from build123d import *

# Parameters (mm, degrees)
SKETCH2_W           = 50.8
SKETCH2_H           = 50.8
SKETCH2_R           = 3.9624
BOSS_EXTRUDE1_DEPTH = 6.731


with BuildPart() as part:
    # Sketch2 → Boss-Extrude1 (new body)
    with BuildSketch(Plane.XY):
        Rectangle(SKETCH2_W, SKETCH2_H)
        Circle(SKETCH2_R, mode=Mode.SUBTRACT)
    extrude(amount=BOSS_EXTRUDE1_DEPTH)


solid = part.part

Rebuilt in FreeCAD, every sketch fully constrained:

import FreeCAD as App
import Part
import Sketcher

V = App.Vector
Q = App.Units.Quantity


def add_polygon(sketch, points):
    """Adds a closed chain of lines whose ends are joined by coincident constraints."""
    first, n = sketch.GeometryCount, len(points)
    for a, b in zip(points, points[1:] + points[:1]):
        sketch.addGeometry(Part.LineSegment(App.Vector(*a, 0), App.Vector(*b, 0)), False)
    for i in range(n):
        sketch.addConstraint(Sketcher.Constraint("Coincident", first + i, 2, first + (i + 1) % n, 1))

doc = App.newDocument("Part")
body = doc.addObject("PartDesign::Body", "Body")

sketch1 = body.newObject("Sketcher::SketchObject", "Sketch")
sketch1.AttachmentSupport = (doc.getObject("XY_Plane"), [""])
sketch1.MapMode = "FlatFace"
add_polygon(sketch1, [(-25.4, 25.4), (-25.4, -25.4), (25.4, -25.4), (25.4, 25.4)])
sketch1.addGeometry(Part.Circle(V(0, 0, 0), V(0, 0, 1), 3.9624), False)
sketch1.addConstraint(Sketcher.Constraint("Vertical", 0))
sketch1.addConstraint(Sketcher.Constraint("Horizontal", 1))
sketch1.addConstraint(Sketcher.Constraint("Vertical", 2))
sketch1.addConstraint(Sketcher.Constraint("Horizontal", 3))
sketch1.addConstraint(Sketcher.Constraint("Coincident", 4, 3, -1, 1))
sketch1.addConstraint(Sketcher.Constraint("Symmetric", 0, 2, 2, 2, -1, 1))
sketch1.addConstraint(Sketcher.Constraint("Equal", 3, 0))
sketch1.addConstraint(Sketcher.Constraint("DistanceX", 1, 1, 1, 2, Q("2 in")))
sketch1.addConstraint(Sketcher.Constraint("Diameter", 4, Q("0.312 in")))
pad1 = body.newObject("PartDesign::Pad", "Pad")
pad1.Profile = sketch1
pad1.Length = Q("0.265 in")

doc.recompute()
